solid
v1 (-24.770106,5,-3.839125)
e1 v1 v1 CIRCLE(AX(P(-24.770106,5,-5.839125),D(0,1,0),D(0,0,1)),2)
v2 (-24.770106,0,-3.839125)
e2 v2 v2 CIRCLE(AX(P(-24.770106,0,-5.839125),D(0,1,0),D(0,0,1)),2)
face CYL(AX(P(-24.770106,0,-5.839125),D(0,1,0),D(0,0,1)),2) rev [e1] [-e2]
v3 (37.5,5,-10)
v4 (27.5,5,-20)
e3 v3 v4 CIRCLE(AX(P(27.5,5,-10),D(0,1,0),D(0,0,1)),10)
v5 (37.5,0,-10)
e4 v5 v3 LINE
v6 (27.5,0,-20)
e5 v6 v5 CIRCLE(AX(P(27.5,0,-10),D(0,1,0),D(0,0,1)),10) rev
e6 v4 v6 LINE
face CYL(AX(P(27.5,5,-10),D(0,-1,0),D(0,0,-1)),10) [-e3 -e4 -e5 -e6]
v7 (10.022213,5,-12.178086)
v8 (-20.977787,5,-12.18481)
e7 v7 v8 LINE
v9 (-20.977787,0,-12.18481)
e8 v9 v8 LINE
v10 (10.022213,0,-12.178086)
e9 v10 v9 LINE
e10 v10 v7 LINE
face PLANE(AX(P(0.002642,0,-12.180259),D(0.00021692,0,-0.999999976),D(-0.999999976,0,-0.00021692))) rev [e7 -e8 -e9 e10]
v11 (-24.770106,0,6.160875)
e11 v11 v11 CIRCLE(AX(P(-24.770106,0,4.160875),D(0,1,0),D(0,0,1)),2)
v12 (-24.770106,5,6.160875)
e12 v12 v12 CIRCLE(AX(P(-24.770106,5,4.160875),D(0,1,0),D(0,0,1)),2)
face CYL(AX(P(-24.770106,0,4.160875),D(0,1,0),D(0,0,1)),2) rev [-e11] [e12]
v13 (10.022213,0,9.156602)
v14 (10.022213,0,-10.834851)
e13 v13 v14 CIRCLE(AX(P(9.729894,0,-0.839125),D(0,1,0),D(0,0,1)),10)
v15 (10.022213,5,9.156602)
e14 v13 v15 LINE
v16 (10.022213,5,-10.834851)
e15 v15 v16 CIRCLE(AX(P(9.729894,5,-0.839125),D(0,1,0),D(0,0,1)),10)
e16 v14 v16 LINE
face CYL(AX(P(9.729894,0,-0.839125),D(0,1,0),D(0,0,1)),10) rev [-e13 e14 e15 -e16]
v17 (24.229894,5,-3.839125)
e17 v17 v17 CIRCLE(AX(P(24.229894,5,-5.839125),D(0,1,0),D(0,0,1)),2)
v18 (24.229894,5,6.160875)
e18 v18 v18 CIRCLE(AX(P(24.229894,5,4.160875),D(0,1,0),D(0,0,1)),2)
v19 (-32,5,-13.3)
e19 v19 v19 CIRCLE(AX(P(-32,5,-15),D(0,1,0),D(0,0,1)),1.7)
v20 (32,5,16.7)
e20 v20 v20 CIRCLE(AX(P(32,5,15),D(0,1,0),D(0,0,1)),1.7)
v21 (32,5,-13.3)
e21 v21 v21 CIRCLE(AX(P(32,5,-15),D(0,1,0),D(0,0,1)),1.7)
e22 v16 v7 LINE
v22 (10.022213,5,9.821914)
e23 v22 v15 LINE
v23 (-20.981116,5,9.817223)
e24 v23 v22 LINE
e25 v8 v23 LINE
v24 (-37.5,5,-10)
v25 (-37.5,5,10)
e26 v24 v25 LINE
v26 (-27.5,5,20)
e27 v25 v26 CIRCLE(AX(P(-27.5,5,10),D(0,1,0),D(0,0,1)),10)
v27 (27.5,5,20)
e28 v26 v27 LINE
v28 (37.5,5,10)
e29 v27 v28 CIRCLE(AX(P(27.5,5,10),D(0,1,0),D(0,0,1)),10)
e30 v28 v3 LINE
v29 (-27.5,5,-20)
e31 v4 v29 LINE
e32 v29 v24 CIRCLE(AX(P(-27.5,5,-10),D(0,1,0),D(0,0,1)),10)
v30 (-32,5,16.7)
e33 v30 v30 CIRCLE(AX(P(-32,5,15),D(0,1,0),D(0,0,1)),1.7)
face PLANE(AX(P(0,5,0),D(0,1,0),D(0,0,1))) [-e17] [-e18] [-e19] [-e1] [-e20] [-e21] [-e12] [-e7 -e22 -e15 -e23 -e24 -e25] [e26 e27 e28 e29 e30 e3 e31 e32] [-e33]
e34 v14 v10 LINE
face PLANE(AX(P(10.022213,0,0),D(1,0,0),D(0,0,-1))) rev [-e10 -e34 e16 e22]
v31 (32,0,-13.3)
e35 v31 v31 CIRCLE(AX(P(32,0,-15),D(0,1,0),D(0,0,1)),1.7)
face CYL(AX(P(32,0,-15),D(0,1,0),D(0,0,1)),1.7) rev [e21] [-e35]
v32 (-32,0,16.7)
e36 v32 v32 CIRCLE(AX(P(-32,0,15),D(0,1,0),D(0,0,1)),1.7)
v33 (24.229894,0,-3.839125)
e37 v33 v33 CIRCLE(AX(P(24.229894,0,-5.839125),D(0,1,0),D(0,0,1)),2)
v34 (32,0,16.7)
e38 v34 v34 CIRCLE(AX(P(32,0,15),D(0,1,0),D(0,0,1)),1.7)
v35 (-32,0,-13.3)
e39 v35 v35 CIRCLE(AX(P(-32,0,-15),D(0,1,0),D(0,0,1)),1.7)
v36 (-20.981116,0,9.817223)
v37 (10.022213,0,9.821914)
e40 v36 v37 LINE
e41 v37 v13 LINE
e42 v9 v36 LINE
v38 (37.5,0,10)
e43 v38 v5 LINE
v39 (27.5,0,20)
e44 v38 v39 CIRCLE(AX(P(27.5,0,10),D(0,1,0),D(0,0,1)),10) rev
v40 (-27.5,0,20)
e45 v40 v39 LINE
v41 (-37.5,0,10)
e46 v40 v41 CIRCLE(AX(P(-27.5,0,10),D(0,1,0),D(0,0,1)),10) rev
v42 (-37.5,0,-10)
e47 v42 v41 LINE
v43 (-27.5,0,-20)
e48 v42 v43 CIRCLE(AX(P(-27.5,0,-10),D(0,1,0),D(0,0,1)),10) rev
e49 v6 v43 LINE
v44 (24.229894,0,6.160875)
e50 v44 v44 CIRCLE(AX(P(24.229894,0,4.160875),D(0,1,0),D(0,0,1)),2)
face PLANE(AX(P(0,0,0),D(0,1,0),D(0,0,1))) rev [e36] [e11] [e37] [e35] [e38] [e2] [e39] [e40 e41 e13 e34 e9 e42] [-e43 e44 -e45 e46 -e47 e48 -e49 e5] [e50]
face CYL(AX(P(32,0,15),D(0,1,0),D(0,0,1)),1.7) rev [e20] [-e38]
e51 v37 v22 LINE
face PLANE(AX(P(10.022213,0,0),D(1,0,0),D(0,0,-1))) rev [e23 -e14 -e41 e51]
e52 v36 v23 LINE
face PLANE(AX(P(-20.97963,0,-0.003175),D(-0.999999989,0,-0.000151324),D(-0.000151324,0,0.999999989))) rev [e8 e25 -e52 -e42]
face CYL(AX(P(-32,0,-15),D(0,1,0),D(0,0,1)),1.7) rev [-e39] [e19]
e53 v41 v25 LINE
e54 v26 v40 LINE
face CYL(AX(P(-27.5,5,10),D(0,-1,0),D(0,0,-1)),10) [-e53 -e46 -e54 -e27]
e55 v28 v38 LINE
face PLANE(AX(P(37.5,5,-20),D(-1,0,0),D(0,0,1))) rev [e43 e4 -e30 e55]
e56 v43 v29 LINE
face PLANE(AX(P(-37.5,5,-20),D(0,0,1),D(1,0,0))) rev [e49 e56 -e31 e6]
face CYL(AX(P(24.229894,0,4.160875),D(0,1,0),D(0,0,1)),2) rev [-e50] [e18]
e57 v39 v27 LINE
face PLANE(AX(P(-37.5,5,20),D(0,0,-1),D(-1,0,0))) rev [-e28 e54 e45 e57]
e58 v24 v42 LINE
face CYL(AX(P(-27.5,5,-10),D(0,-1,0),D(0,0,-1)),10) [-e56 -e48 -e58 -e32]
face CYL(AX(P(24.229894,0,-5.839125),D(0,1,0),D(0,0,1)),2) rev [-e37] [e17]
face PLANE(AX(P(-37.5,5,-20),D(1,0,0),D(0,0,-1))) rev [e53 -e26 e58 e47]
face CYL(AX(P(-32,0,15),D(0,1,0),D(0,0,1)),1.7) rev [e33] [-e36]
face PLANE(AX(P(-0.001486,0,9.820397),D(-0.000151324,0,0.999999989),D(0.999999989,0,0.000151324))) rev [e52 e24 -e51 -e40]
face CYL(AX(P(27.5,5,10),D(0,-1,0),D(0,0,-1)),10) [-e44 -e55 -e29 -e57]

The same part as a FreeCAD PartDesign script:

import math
import FreeCAD as App
import Part
import Sketcher
Q = App.Units.Quantity


def edges_at(feature, points):
    """Names of the edges that pass closest to the given points."""
    edges = feature.Shape.Edges
    near = lambda p: min(range(len(edges)), key=lambda i: edges[i].distToShape(Part.Vertex(*p))[0])
    return sorted({f"Edge{near(p) + 1}" for p in points})


def add_polygon(sketch, points):
    """Adds a closed chain of lines whose ends are joined by coincident constraints."""
    first, n = sketch.GeometryCount, len(points)
    for a, b in zip(points, points[1:] + points[:1]):
        sketch.addGeometry(Part.LineSegment(App.Vector(*a, 0), App.Vector(*b, 0)), False)
    for i in range(n):
        sketch.addConstraint(Sketcher.Constraint("Coincident", first + i, 2, first + (i + 1) % n, 1))

doc = App.newDocument("Part")
body = doc.addObject("PartDesign::Body", "Body")

# Sketch on XZ plane
sketch1 = body.newObject("Sketcher::SketchObject", "Sketch")
sketch1.AttachmentSupport = (doc.getObject("XZ_Plane"), [""])
sketch1.MapMode = "FlatFace"
add_polygon(sketch1, [(-38, -20), (-38, 20), (38, 20), (38, -20)])  # lines 0-3
sketch1.addConstraint([
    Sketcher.Constraint("Vertical", 0),
    Sketcher.Constraint("Horizontal", 1),
    Sketcher.Constraint("Vertical", 2),
    Sketcher.Constraint("Horizontal", 3),
    Sketcher.Constraint("Symmetric", 0, 2, 2, 2, -1, 1),
    Sketcher.Constraint("DistanceX", 1, 1, 1, 2, Q("75 mm")),
    Sketcher.Constraint("DistanceY", 0, 1, 0, 2, Q("40 mm")),
])
pad1 = body.newObject("PartDesign::Pad", "Pad")
pad1.Profile = sketch1
pad1.Length = 5
pad1.Reversed = True

# Sketch on XZ plane
sketch2 = body.newObject("Sketcher::SketchObject", "Sketch001")
sketch2.AttachmentSupport = (doc.getObject("XZ_Plane"), [""])
sketch2.MapMode = "FlatFace"
sketch2.AttachmentOffset = App.Placement(App.Vector(0, 0, -5), App.Rotation())
sketch2.addGeometry([
    Part.ArcOfCircle(Part.Circle(App.Vector(9.7, -0.8, 0), App.Vector(0, 0, 1), 10), math.radians(-88), math.radians(88)),  # 0
    Part.LineSegment(App.Vector(10, -10.8, 0), App.Vector(10, -12.2, 0)),  # 1
    Part.LineSegment(App.Vector(10, -12.2, 0), App.Vector(-21, -12.2, 0)),  # 2
    Part.LineSegment(App.Vector(-21, -12.2, 0), App.Vector(-21, 9.8, 0)),  # 3
    Part.LineSegment(App.Vector(-21, 9.8, 0), App.Vector(10, 9.8, 0)),  # 4
    Part.LineSegment(App.Vector(10, 9.8, 0), App.Vector(10, 9.2, 0)),  # 5
    Part.Circle(App.Vector(24.2, -5.8, 0), App.Vector(0, 0, 1), 2),  # 6
    Part.Circle(App.Vector(24.2, 4.2, 0), App.Vector(0, 0, 1), 2),  # 7
    Part.Circle(App.Vector(-24.8, -5.8, 0), App.Vector(0, 0, 1), 2),  # 8
    Part.Circle(App.Vector(-24.8, 4.2, 0), App.Vector(0, 0, 1), 2),  # 9
], False)
sketch2.addConstraint([
    Sketcher.Constraint("Coincident", 0, 1, 1, 1),
    Sketcher.Constraint("Coincident", 1, 2, 2, 1),
    Sketcher.Constraint("Coincident", 2, 2, 3, 1),
    Sketcher.Constraint("Coincident", 3, 2, 4, 1),
    Sketcher.Constraint("Coincident", 4, 2, 5, 1),
    Sketcher.Constraint("Coincident", 5, 2, 0, 2),
    Sketcher.Constraint("Vertical", 1),
    Sketcher.Constraint("Vertical", 5),
    Sketcher.Constraint("Equal", 6, 7),
    Sketcher.Constraint("Equal", 7, 8),
    Sketcher.Constraint("Equal", 8, 9),
    Sketcher.Constraint("Perpendicular", 3, 4),
    Sketcher.Constraint("Horizontal", 6, 3, 8, 3),
    Sketcher.Constraint("Horizontal", 7, 3, 9, 3),
    Sketcher.Constraint("Vertical", 6, 3, 7, 3),
    Sketcher.Constraint("Vertical", 8, 3, 9, 3),
    Sketcher.Constraint("Vertical", 1, 2, 4, 2),
    Sketcher.Constraint("Diameter", 6, Q("4 mm")),
    Sketcher.Constraint("Radius", 0, Q("10 mm")),
    Sketcher.Constraint("Distance", 2, Q("31.000001 mm")),
    Sketcher.Constraint("DistanceY", 6, 3, 0, 3, Q("5 mm")),
    Sketcher.Constraint("DistanceY", 6, 3, 7, 3, Q("10 mm")),
    Sketcher.Constraint("DistanceX", 8, 3, 6, 3, Q("49 mm")),
    Sketcher.Constraint("DistanceY", 1, 2, 4, 2, Q("22 mm")),
    Sketcher.Constraint("DistanceX", 0, 3, 6, 3, Q("14.5 mm")),
    Sketcher.Constraint("DistanceY", -1, 1, 5, 2, Q("9.156602 mm")),
    Sketcher.Constraint("Distance", 4, Q("31.00333 mm")),
    Sketcher.Constraint("DistanceY", 1, 2, 1, 1, Q("1.343234 mm")),
    Sketcher.Constraint("DistanceY", 5, 2, 5, 1, Q("0.665312 mm")),
    Sketcher.Constraint("DistanceY", 2, 2, -1, 1, Q("12.18481 mm")),
    Sketcher.Constraint("DistanceX", -1, 1, 0, 3, Q("9.729894 mm")),
])
pocket1 = body.newObject("PartDesign::Pocket", "Pocket")
pocket1.Profile = sketch2
pocket1.Length = 43.793107
pocket1.Reversed = True

# Sketch on XZ plane
sketch3 = body.newObject("Sketcher::SketchObject", "Sketch002")
sketch3.AttachmentSupport = (doc.getObject("XZ_Plane"), [""])
sketch3.MapMode = "FlatFace"
sketch3.AttachmentOffset = App.Placement(App.Vector(0, 0, -5), App.Rotation())
sketch3.addGeometry([
    Part.Circle(App.Vector(-32, -15, 0), App.Vector(0, 0, 1), 1.7),
    Part.Circle(App.Vector(32, -15, 0), App.Vector(0, 0, 1), 1.7),
    Part.Circle(App.Vector(32, 15, 0), App.Vector(0, 0, 1), 1.7),
    Part.Circle(App.Vector(-32, 15, 0), App.Vector(0, 0, 1), 1.7),
], False)
sketch3.addConstraint([
    Sketcher.Constraint("Equal", 0, 1),
    Sketcher.Constraint("Equal", 1, 2),
    Sketcher.Constraint("Equal", 2, 3),
    Sketcher.Constraint("Symmetric", 0, 3, 2, 3, -1, 1),
    Sketcher.Constraint("Symmetric", 1, 3, 3, 3, -1, 1),
    Sketcher.Constraint("Symmetric", 0, 3, 1, 3, -2),
    Sketcher.Constraint("Diameter", 0, Q("3.4 mm")),
    Sketcher.Constraint("DistanceX", 0, 3, -1, 1, Q("32 mm")),
    Sketcher.Constraint("DistanceY", 0, 3, -1, 1, Q("15 mm")),
])
pocket2 = body.newObject("PartDesign::Pocket", "Pocket001")
pocket2.Profile = sketch3
pocket2.Type = "ThroughAll"
pocket2.Reversed = True
doc.recompute()

fillet = body.newObject("PartDesign::Fillet", "Fillet")
fillet.Base = (pocket2, edges_at(pocket2, [
    (37.5, 2.5, 20),
    (-37.5, 2.5, 20),
    (-37.5, 2.5, -20),
    (37.5, 2.5, -20),
]))
fillet.Radius = 10

doc.recompute()
